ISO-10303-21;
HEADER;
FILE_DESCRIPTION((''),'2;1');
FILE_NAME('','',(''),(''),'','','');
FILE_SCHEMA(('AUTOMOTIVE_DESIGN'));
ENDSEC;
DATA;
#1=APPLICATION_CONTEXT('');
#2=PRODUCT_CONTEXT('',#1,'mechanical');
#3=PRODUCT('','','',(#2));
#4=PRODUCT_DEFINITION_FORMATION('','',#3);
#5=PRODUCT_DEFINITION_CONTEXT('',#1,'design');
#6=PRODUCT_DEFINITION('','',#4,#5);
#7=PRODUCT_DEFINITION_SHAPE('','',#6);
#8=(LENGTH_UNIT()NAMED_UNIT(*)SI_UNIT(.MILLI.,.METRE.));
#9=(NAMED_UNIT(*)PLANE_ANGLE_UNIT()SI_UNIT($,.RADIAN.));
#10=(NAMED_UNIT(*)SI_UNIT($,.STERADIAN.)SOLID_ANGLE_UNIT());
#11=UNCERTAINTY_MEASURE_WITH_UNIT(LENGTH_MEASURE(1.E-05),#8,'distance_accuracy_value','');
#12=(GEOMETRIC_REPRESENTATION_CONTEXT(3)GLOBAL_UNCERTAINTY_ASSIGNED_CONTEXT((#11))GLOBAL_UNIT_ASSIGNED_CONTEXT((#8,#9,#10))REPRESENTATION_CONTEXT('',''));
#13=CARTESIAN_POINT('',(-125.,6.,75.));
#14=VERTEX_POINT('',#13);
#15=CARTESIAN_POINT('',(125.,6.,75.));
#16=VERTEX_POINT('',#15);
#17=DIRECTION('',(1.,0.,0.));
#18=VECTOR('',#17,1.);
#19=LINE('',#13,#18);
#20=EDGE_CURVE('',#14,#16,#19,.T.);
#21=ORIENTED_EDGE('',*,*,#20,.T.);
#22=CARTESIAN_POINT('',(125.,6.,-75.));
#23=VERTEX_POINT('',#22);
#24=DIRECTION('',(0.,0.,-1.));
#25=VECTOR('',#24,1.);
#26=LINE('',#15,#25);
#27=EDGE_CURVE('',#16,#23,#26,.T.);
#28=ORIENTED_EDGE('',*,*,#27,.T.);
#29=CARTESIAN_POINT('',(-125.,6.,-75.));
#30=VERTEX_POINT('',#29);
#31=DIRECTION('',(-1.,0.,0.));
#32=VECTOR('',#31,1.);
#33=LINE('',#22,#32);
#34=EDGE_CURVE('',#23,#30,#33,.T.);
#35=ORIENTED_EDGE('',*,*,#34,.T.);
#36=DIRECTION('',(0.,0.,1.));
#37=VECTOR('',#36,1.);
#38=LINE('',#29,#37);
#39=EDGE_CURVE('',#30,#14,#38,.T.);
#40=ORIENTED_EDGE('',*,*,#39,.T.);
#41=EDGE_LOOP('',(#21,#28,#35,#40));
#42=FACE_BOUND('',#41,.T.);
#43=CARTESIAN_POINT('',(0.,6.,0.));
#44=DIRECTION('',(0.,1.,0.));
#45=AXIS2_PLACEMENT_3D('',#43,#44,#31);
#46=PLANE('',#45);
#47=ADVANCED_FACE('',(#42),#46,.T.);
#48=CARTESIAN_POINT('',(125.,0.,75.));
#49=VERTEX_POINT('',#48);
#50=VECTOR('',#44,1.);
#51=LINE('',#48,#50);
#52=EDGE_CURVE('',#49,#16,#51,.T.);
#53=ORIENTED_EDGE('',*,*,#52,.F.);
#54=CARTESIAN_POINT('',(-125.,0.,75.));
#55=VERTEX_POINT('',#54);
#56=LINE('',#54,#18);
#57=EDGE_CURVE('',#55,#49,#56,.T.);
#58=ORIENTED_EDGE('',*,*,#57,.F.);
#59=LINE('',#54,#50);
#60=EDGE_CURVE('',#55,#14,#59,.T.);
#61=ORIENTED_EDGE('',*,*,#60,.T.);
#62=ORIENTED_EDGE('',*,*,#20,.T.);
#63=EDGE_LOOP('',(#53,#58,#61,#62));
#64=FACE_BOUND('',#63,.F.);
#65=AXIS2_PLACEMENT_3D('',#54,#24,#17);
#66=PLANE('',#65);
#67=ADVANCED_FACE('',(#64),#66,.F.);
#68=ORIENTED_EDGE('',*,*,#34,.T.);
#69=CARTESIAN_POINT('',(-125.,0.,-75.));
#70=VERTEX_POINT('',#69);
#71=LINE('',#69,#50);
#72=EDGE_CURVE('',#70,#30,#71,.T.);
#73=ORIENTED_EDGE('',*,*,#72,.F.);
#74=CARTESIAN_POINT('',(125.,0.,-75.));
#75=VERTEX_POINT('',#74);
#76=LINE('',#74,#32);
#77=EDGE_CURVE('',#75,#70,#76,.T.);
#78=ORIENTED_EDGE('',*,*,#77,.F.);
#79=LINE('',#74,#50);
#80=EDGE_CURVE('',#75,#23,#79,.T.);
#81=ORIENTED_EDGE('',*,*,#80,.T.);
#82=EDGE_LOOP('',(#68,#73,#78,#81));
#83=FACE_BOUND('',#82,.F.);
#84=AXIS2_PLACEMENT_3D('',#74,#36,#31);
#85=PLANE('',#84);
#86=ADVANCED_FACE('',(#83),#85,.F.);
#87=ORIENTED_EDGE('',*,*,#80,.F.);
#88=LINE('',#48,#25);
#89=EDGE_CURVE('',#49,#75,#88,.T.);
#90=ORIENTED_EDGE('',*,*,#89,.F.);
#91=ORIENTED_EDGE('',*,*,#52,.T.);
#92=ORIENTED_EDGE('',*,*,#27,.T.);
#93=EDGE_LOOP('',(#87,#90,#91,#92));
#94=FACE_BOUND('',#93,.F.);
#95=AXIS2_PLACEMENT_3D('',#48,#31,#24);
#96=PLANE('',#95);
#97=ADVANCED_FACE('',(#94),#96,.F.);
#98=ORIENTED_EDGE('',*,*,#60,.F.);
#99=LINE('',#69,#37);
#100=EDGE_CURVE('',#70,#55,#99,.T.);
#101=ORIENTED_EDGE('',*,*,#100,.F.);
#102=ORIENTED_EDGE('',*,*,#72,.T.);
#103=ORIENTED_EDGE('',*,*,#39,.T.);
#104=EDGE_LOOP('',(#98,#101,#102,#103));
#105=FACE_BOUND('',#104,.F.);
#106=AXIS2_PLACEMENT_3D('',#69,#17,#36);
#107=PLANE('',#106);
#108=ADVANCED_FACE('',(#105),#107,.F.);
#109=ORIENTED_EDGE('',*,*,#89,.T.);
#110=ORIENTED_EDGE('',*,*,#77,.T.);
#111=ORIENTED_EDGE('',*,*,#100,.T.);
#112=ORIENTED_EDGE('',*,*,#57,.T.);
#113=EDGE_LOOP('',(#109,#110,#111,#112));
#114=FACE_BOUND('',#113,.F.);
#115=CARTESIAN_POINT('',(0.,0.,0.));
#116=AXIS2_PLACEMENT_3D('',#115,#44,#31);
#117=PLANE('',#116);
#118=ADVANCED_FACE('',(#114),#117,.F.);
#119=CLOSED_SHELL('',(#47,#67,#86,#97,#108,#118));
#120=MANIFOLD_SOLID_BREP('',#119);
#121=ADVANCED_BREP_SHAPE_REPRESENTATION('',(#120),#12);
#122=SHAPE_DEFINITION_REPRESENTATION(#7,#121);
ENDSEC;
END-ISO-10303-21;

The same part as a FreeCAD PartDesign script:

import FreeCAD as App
import Part
import Sketcher

V = App.Vector

doc = App.newDocument("Part")
body = doc.addObject("PartDesign::Body", "Body")

sketch1 = body.newObject("Sketcher::SketchObject", "Sketch")
sketch1.AttachmentSupport = (doc.getObject("XZ_Plane"), [""])
sketch1.MapMode = "FlatFace"
sketch1.addGeometry([
    Part.LineSegment(V(-125, -75, 0), V(-125, 75, 0)),
    Part.LineSegment(V(-125, 75, 0), V(125, 75, 0)),
    Part.LineSegment(V(125, 75, 0), V(125, -75, 0)),
    Part.LineSegment(V(125, -75, 0), V(-125, -75, 0)),
], False)
sketch1.addConstraint([
    Sketcher.Constraint("Coincident", 0, 2, 1, 1),
    Sketcher.Constraint("Coincident", 1, 2, 2, 1),
    Sketcher.Constraint("Coincident", 2, 2, 3, 1),
    Sketcher.Constraint("Coincident", 3, 2, 0, 1),
    Sketcher.Constraint("Vertical", 0),
    Sketcher.Constraint("Horizontal", 1),
    Sketcher.Constraint("Vertical", 2),
    Sketcher.Constraint("Horizontal", 3),
    Sketcher.Constraint("Symmetric", 0, 2, 2, 2, -1, 1),
    Sketcher.Constraint("DistanceX", 1, 1, 1, 2, 250.0),
    Sketcher.Constraint("DistanceY", 0, 1, 0, 2, 150.0),
])
pad1 = body.newObject("PartDesign::Pad", "Pad")
pad1.Profile = sketch1
pad1.Length = 6
pad1.Reversed = True

doc.recompute()
